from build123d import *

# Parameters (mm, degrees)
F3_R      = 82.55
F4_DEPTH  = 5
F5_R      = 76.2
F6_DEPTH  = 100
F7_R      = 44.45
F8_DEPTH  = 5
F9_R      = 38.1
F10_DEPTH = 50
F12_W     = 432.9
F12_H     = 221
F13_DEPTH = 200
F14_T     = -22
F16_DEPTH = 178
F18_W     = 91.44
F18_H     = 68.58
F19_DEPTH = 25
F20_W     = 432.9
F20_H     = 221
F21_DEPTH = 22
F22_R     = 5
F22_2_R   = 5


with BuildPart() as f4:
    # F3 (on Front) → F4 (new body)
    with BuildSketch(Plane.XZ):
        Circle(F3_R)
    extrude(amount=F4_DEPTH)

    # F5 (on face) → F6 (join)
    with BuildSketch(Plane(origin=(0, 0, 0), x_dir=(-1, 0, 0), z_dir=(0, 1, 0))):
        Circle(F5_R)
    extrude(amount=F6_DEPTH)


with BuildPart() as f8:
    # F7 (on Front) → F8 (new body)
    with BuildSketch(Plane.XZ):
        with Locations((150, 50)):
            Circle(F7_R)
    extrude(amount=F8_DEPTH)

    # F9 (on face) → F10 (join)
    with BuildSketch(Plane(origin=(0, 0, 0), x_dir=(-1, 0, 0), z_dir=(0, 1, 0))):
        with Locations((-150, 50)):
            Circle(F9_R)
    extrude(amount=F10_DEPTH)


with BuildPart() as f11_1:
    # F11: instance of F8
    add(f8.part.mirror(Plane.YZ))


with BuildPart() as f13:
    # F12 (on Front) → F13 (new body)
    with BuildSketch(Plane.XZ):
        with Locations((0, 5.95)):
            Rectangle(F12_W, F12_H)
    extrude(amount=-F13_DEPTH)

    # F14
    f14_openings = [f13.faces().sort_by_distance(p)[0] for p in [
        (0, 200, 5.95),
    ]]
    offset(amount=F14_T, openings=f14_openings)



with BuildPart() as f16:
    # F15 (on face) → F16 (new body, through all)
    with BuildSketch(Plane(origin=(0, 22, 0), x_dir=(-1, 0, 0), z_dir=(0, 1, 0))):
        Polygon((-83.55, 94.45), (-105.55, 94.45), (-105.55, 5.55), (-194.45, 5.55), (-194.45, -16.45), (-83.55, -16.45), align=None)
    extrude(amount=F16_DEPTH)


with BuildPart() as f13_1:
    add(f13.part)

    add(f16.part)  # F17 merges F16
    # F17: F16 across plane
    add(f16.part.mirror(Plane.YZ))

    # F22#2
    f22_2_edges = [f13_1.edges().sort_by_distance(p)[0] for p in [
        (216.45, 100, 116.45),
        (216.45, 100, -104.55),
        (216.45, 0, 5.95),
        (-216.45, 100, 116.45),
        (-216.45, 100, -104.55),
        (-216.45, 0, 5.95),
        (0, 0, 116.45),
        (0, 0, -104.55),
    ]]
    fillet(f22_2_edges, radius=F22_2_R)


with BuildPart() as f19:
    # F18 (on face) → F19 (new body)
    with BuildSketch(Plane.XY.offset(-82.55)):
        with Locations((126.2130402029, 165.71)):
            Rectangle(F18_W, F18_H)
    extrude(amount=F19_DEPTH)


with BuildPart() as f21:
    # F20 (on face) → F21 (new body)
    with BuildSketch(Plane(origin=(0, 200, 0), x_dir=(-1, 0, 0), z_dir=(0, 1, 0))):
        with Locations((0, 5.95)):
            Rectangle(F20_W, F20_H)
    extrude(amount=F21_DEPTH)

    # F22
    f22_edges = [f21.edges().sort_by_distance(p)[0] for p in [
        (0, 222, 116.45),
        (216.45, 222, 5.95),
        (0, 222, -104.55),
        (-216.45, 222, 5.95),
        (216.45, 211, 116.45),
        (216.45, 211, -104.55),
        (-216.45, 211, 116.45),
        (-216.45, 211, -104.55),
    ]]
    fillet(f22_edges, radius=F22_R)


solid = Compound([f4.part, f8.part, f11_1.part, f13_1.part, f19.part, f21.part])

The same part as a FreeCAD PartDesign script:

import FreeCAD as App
import Part
import Sketcher

V = App.Vector
Q = App.Units.Quantity


def edges_at(feature, points):
    """Names of the edges that pass closest to the given points."""
    edges = feature.Shape.Edges
    near = lambda p: min(range(len(edges)), key=lambda i: edges[i].distToShape(Part.Vertex(*p))[0])
    return sorted({f"Edge{near(p) + 1}" for p in points})


def faces_at(feature, points):
    """Names of the faces that lie closest to the given points."""
    faces = feature.Shape.Faces
    near = lambda p: min(range(len(faces)), key=lambda i: faces[i].distToShape(Part.Vertex(*p))[0])
    return sorted({f"Face{near(p) + 1}" for p in points})

doc = App.newDocument("Part")
params = doc.addObject("Spreadsheet::Sheet", "Params")
for row, (alias, value) in enumerate([
    ("sketch1_diameter", "165.1 mm"),
    ("pad1_length", "5 mm"),
    ("sketch2_diameter", "152.4 mm"),
    ("pad2_length", "100 mm"),
    ("sketch3_diameter", "88.9 mm"),
    ("pad3_length", "5 mm"),
    ("sketch4_diameter", "76.2 mm"),
    ("pad4_length", "50 mm"),
    ("sketch5_height", "221 mm"),
    ("sketch5_width", "432.9 mm"),
    ("pad5_length", "200 mm"),
    ("thickness_wall", "22 mm"),
    ("sketch6_width", "22 mm"),
    ("sketch6_width2", "88.9 mm"),
    ("pad6_length", "178 mm"),
    ("fillet_radius", "5 mm"),
    ("sketch7_width", "91.44 mm"),
    ("sketch7_height", "68.58 mm"),
    ("pad7_length", "25 mm"),
    ("sketch8_height", "221 mm"),
    ("sketch8_width", "432.9 mm"),
    ("pad8_length", "22 mm"),
    ("fillet2_radius", "5 mm"),
], start=1):
    params.set(f"A{row}", alias)
    params.set(f"B{row}", "=" + value)
    params.setAlias(f"B{row}", alias)

body = doc.addObject("PartDesign::Body", "Body")

sketch1 = body.newObject("Sketcher::SketchObject", "Sketch")
sketch1.AttachmentSupport = (doc.getObject("XZ_Plane"), [""])
sketch1.MapMode = "FlatFace"
sketch1.addGeometry(Part.Circle(V(0, 0, 0), V(0, 0, 1), 83), False)
sketch1.addConstraint(Sketcher.Constraint("Coincident", 0, 3, -1, 1))
sketch1.addConstraint(Sketcher.Constraint("Diameter", 0, Q("165.1 mm")))
sketch1.setExpression("Constraints[1]", "Params.sketch1_diameter")
pad1 = body.newObject("PartDesign::Pad", "Pad")
pad1.Profile = sketch1
pad1.setExpression("Length", "Params.pad1_length")

sketch2 = body.newObject("Sketcher::SketchObject", "Sketch001")
sketch2.AttachmentSupport = (doc.getObject("XZ_Plane"), [""])
sketch2.MapMode = "FlatFace"
sketch2.addGeometry(Part.Circle(V(0, 0, 0), V(0, 0, 1), 76), False)
sketch2.addConstraint(Sketcher.Constraint("Coincident", 0, 3, -1, 1))
sketch2.addConstraint(Sketcher.Constraint("Diameter", 0, Q("152.4 mm")))
sketch2.setExpression("Constraints[1]", "Params.sketch2_diameter")
pad2 = body.newObject("PartDesign::Pad", "Pad001")
pad2.Profile = sketch2
pad2.setExpression("Length", "Params.pad2_length")
pad2.Reversed = True
body2 = doc.addObject("PartDesign::Body", "Body001")

sketch3 = body2.newObject("Sketcher::SketchObject", "Sketch002")
sketch3.AttachmentSupport = (doc.getObject("XZ_Plane001"), [""])
sketch3.MapMode = "FlatFace"
sketch3.addGeometry(Part.Circle(V(150, 50, 0), V(0, 0, 1), 44), False)
sketch3.addConstraint(Sketcher.Constraint("Diameter", 0, Q("88.9 mm")))
sketch3.addConstraint(Sketcher.Constraint("DistanceX", -1, 1, 0, 3, Q("150 mm")))
sketch3.addConstraint(Sketcher.Constraint("DistanceY", -1, 1, 0, 3, Q("50 mm")))
sketch3.setExpression("Constraints[0]", "Params.sketch3_diameter")
pad3 = body2.newObject("PartDesign::Pad", "Pad002")
pad3.Profile = sketch3
pad3.setExpression("Length", "Params.pad3_length")

sketch4 = body2.newObject("Sketcher::SketchObject", "Sketch003")
sketch4.AttachmentSupport = (doc.getObject("XZ_Plane001"), [""])
sketch4.MapMode = "FlatFace"
sketch4.addGeometry(Part.Circle(V(150, 50, 0), V(0, 0, 1), 38), False)
sketch4.addConstraint(Sketcher.Constraint("Diameter", 0, Q("76.2 mm")))
sketch4.addConstraint(Sketcher.Constraint("DistanceX", -1, 1, 0, 3, Q("150 mm")))
sketch4.addConstraint(Sketcher.Constraint("DistanceY", -1, 1, 0, 3, Q("50 mm")))
sketch4.setExpression("Constraints[0]", "Params.sketch4_diameter")
pad4 = body2.newObject("PartDesign::Pad", "Pad003")
pad4.Profile = sketch4
pad4.setExpression("Length", "Params.pad4_length")
pad4.Reversed = True
body3 = doc.addObject("PartDesign::Body", "Body002")
doc.recompute()

mirroring = doc.addObject("Part::Mirroring", "Mirroring")
mirroring.Source = body2
mirroring.Base = V(0, 0, 0)
mirroring.Normal = V(1, 0, 0)
body3.BaseFeature = mirroring
doc.recompute()
body4 = doc.addObject("PartDesign::Body", "Body003")

sketch5 = body4.newObject("Sketcher::SketchObject", "Sketch004")
sketch5.AttachmentSupport = (doc.getObject("XZ_Plane003"), [""])
sketch5.MapMode = "FlatFace"
sketch5.addGeometry(Part.LineSegment(V(-216, 116, 0), V(-216, -105, 0)), False)
sketch5.addGeometry(Part.LineSegment(V(-216, -105, 0), V(216, -105, 0)), False)
sketch5.addGeometry(Part.LineSegment(V(216, -105, 0), V(216, 116, 0)), False)
sketch5.addGeometry(Part.LineSegment(V(216, 116, 0), V(-216, 116, 0)), False)
sketch5.addConstraint(Sketcher.Constraint("Coincident", 0, 2, 1, 1))
sketch5.addConstraint(Sketcher.Constraint("Coincident", 1, 2, 2, 1))
sketch5.addConstraint(Sketcher.Constraint("Coincident", 2, 2, 3, 1))
sketch5.addConstraint(Sketcher.Constraint("Coincident", 3, 2, 0, 1))
sketch5.addConstraint(Sketcher.Constraint("Vertical", 0))
sketch5.addConstraint(Sketcher.Constraint("Horizontal", 1))
sketch5.addConstraint(Sketcher.Constraint("Vertical", 2))
sketch5.addConstraint(Sketcher.Constraint("Horizontal", 3))
sketch5.addConstraint(Sketcher.Constraint("DistanceY", 0, 2, 0, 1, Q("221 mm")))
sketch5.addConstraint(Sketcher.Constraint("DistanceX", 1, 1, 1, 2, Q("432.9 mm")))
sketch5.addConstraint(Sketcher.Constraint("DistanceX", 0, 2, -1, 1, Q("216.45 mm")))
sketch5.addConstraint(Sketcher.Constraint("DistanceY", 0, 2, -1, 1, Q("104.55 mm")))
sketch5.setExpression("Constraints[8]", "Params.sketch5_height")
sketch5.setExpression("Constraints[9]", "Params.sketch5_width")
pad5 = body4.newObject("PartDesign::Pad", "Pad004")
pad5.Profile = sketch5
pad5.setExpression("Length", "Params.pad5_length")
pad5.Reversed = True
doc.recompute()

thickness = body4.newObject("PartDesign::Thickness", "Thickness")
thickness.Base = (pad5, faces_at(pad5, [(0, 200, 5.95)]))
thickness.setExpression("Value", "Params.thickness_wall")
thickness.Reversed = True
thickness.Join = "Arc"
body5 = doc.addObject("PartDesign::Body", "Body004")

sketch6 = body5.newObject("Sketcher::SketchObject", "Sketch005")
sketch6.AttachmentSupport = (doc.getObject("XZ_Plane004"), [""])
sketch6.MapMode = "FlatFace"
sketch6.AttachmentOffset = App.Placement(V(0, 0, -22), App.Rotation())
sketch6.addGeometry(Part.LineSegment(V(84, 94, 0), V(106, 94, 0)), False)
sketch6.addGeometry(Part.LineSegment(V(106, 94, 0), V(106, 6, 0)), False)
sketch6.addGeometry(Part.LineSegment(V(106, 6, 0), V(194, 6, 0)), False)
sketch6.addGeometry(Part.LineSegment(V(194, 6, 0), V(194, -16, 0)), False)
sketch6.addGeometry(Part.LineSegment(V(194, -16, 0), V(84, -16, 0)), False)
sketch6.addGeometry(Part.LineSegment(V(84, -16, 0), V(84, 94, 0)), False)
sketch6.addConstraint(Sketcher.Constraint("Coincident", 0, 2, 1, 1))
sketch6.addConstraint(Sketcher.Constraint("Coincident", 1, 2, 2, 1))
sketch6.addConstraint(Sketcher.Constraint("Coincident", 2, 2, 3, 1))
sketch6.addConstraint(Sketcher.Constraint("Coincident", 3, 2, 4, 1))
sketch6.addConstraint(Sketcher.Constraint("Coincident", 4, 2, 5, 1))
sketch6.addConstraint(Sketcher.Constraint("Coincident", 5, 2, 0, 1))
sketch6.addConstraint(Sketcher.Constraint("Horizontal", 0))
sketch6.addConstraint(Sketcher.Constraint("Vertical", 1))
sketch6.addConstraint(Sketcher.Constraint("Horizontal", 2))
sketch6.addConstraint(Sketcher.Constraint("Vertical", 3))
sketch6.addConstraint(Sketcher.Constraint("Horizontal", 4))
sketch6.addConstraint(Sketcher.Constraint("Vertical", 5))
sketch6.addConstraint(Sketcher.Constraint("Equal", 2, 1))
sketch6.addConstraint(Sketcher.Constraint("Equal", 0, 3))
sketch6.addConstraint(Sketcher.Constraint("DistanceX", 0, 1, 0, 2, Q("22 mm")))
sketch6.addConstraint(Sketcher.Constraint("DistanceX", 2, 1, 2, 2, Q("88.9 mm")))
sketch6.addConstraint(Sketcher.Constraint("DistanceX", -1, 1, 0, 2, Q("105.55 mm")))
sketch6.addConstraint(Sketcher.Constraint("DistanceY", -1, 1, 0, 2, Q("94.45 mm")))
sketch6.setExpression("Constraints[14]", "Params.sketch6_width")
sketch6.setExpression("Constraints[15]", "Params.sketch6_width2")
pad6 = body5.newObject("PartDesign::Pad", "Pad005")
pad6.Profile = sketch6
pad6.setExpression("Length", "Params.pad6_length")
pad6.Reversed = True
doc.recompute()

body6 = doc.addObject("PartDesign::Body", "Body005")
body6.BaseFeature = body5
boolean = body4.newObject("PartDesign::Boolean", "Boolean")
boolean.Type = "Fuse"
boolean.addObjects([body6])
doc.recompute()

mirroring2 = doc.addObject("Part::Mirroring", "Mirroring001")
mirroring2.Source = body5
mirroring2.Base = V(0, 0, 0)
mirroring2.Normal = V(1, 0, 0)
body7 = doc.addObject("PartDesign::Body", "Body006")
body7.BaseFeature = mirroring2
boolean2 = body4.newObject("PartDesign::Boolean", "Boolean001")
boolean2.Type = "Fuse"
boolean2.addObjects([body7])
doc.recompute()

fillet = body4.newObject("PartDesign::Fillet", "Fillet")
fillet.Base = (boolean2, edges_at(boolean2, [
    (216.45, 100, 116.45),
    (216.45, 100, -104.55),
    (216.45, 0, 5.95),
    (-216.45, 100, 116.45),
    (-216.45, 100, -104.55),
    (-216.45, 0, 5.95),
    (0, 0, 116.45),
    (0, 0, -104.55),
]))
fillet.setExpression("Radius", "Params.fillet_radius")
body8 = doc.addObject("PartDesign::Body", "Body007")

sketch7 = body8.newObject("Sketcher::SketchObject", "Sketch006")
sketch7.AttachmentSupport = (doc.getObject("XY_Plane007"), [""])
sketch7.MapMode = "FlatFace"
sketch7.AttachmentOffset = App.Placement(V(0, 0, -82.55), App.Rotation())
sketch7.addGeometry(Part.LineSegment(V(80, 200, 0), V(80, 131, 0)), False)
sketch7.addGeometry(Part.LineSegment(V(80, 131, 0), V(172, 131, 0)), False)
sketch7.addGeometry(Part.LineSegment(V(172, 131, 0), V(172, 200, 0)), False)
sketch7.addGeometry(Part.LineSegment(V(172, 200, 0), V(80, 200, 0)), False)
sketch7.addConstraint(Sketcher.Constraint("Coincident", 0, 2, 1, 1))
sketch7.addConstraint(Sketcher.Constraint("Coincident", 1, 2, 2, 1))
sketch7.addConstraint(Sketcher.Constraint("Coincident", 2, 2, 3, 1))
sketch7.addConstraint(Sketcher.Constraint("Coincident", 3, 2, 0, 1))
sketch7.addConstraint(Sketcher.Constraint("Vertical", 0))
sketch7.addConstraint(Sketcher.Constraint("Horizontal", 1))
sketch7.addConstraint(Sketcher.Constraint("Vertical", 2))
sketch7.addConstraint(Sketcher.Constraint("Horizontal", 3))
sketch7.addConstraint(Sketcher.Constraint("DistanceY", -1, 1, 2, 2, Q("200 mm")))
sketch7.addConstraint(Sketcher.Constraint("DistanceX", 1, 1, 1, 2, Q("91.44 mm")))
sketch7.addConstraint(Sketcher.Constraint("DistanceY", 0, 2, 0, 1, Q("68.58 mm")))
sketch7.addConstraint(Sketcher.Constraint("DistanceX", -1, 1, 0, 2, Q("80.49304 mm")))
sketch7.setExpression("Constraints[9]", "Params.sketch7_width")
sketch7.setExpression("Constraints[10]", "Params.sketch7_height")
pad7 = body8.newObject("PartDesign::Pad", "Pad006")
pad7.Profile = sketch7
pad7.setExpression("Length", "Params.pad7_length")
body9 = doc.addObject("PartDesign::Body", "Body008")

sketch8 = body9.newObject("Sketcher::SketchObject", "Sketch007")
sketch8.AttachmentSupport = (doc.getObject("XZ_Plane008"), [""])
sketch8.MapMode = "FlatFace"
sketch8.AttachmentOffset = App.Placement(V(0, 0, -200), App.Rotation())
sketch8.addGeometry(Part.LineSegment(V(216, 116, 0), V(216, -105, 0)), False)
sketch8.addGeometry(Part.LineSegment(V(216, -105, 0), V(-216, -105, 0)), False)
sketch8.addGeometry(Part.LineSegment(V(-216, -105, 0), V(-216, 116, 0)), False)
sketch8.addGeometry(Part.LineSegment(V(-216, 116, 0), V(216, 116, 0)), False)
sketch8.addConstraint(Sketcher.Constraint("Coincident", 0, 2, 1, 1))
sketch8.addConstraint(Sketcher.Constraint("Coincident", 1, 2, 2, 1))
sketch8.addConstraint(Sketcher.Constraint("Coincident", 2, 2, 3, 1))
sketch8.addConstraint(Sketcher.Constraint("Coincident", 3, 2, 0, 1))
sketch8.addConstraint(Sketcher.Constraint("Vertical", 0))
sketch8.addConstraint(Sketcher.Constraint("Horizontal", 1))
sketch8.addConstraint(Sketcher.Constraint("Vertical", 2))
sketch8.addConstraint(Sketcher.Constraint("Horizontal", 3))
sketch8.addConstraint(Sketcher.Constraint("DistanceY", 0, 2, 0, 1, Q("221 mm")))
sketch8.addConstraint(Sketcher.Constraint("DistanceX", 1, 2, 1, 1, Q("432.9 mm")))
sketch8.addConstraint(Sketcher.Constraint("DistanceX", -1, 1, 0, 2, Q("216.45 mm")))
sketch8.addConstraint(Sketcher.Constraint("DistanceY", 0, 2, -1, 1, Q("104.55 mm")))
sketch8.setExpression("Constraints[8]", "Params.sketch8_height")
sketch8.setExpression("Constraints[9]", "Params.sketch8_width")
pad8 = body9.newObject("PartDesign::Pad", "Pad007")
pad8.Profile = sketch8
pad8.setExpression("Length", "Params.pad8_length")
pad8.Reversed = True
doc.recompute()

fillet2 = body9.newObject("PartDesign::Fillet", "Fillet001")
fillet2.Base = (pad8, edges_at(pad8, [
    (0, 222, 116.45),
    (216.45, 222, 5.95),
    (0, 222, -104.55),
    (-216.45, 222, 5.95),
    (216.45, 211, 116.45),
    (216.45, 211, -104.55),
    (-216.45, 211, 116.45),
    (-216.45, 211, -104.55),
]))
fillet2.setExpression("Radius", "Params.fillet2_radius")
mirroring.Visibility = False
mirroring2.Visibility = False

doc.recompute()
